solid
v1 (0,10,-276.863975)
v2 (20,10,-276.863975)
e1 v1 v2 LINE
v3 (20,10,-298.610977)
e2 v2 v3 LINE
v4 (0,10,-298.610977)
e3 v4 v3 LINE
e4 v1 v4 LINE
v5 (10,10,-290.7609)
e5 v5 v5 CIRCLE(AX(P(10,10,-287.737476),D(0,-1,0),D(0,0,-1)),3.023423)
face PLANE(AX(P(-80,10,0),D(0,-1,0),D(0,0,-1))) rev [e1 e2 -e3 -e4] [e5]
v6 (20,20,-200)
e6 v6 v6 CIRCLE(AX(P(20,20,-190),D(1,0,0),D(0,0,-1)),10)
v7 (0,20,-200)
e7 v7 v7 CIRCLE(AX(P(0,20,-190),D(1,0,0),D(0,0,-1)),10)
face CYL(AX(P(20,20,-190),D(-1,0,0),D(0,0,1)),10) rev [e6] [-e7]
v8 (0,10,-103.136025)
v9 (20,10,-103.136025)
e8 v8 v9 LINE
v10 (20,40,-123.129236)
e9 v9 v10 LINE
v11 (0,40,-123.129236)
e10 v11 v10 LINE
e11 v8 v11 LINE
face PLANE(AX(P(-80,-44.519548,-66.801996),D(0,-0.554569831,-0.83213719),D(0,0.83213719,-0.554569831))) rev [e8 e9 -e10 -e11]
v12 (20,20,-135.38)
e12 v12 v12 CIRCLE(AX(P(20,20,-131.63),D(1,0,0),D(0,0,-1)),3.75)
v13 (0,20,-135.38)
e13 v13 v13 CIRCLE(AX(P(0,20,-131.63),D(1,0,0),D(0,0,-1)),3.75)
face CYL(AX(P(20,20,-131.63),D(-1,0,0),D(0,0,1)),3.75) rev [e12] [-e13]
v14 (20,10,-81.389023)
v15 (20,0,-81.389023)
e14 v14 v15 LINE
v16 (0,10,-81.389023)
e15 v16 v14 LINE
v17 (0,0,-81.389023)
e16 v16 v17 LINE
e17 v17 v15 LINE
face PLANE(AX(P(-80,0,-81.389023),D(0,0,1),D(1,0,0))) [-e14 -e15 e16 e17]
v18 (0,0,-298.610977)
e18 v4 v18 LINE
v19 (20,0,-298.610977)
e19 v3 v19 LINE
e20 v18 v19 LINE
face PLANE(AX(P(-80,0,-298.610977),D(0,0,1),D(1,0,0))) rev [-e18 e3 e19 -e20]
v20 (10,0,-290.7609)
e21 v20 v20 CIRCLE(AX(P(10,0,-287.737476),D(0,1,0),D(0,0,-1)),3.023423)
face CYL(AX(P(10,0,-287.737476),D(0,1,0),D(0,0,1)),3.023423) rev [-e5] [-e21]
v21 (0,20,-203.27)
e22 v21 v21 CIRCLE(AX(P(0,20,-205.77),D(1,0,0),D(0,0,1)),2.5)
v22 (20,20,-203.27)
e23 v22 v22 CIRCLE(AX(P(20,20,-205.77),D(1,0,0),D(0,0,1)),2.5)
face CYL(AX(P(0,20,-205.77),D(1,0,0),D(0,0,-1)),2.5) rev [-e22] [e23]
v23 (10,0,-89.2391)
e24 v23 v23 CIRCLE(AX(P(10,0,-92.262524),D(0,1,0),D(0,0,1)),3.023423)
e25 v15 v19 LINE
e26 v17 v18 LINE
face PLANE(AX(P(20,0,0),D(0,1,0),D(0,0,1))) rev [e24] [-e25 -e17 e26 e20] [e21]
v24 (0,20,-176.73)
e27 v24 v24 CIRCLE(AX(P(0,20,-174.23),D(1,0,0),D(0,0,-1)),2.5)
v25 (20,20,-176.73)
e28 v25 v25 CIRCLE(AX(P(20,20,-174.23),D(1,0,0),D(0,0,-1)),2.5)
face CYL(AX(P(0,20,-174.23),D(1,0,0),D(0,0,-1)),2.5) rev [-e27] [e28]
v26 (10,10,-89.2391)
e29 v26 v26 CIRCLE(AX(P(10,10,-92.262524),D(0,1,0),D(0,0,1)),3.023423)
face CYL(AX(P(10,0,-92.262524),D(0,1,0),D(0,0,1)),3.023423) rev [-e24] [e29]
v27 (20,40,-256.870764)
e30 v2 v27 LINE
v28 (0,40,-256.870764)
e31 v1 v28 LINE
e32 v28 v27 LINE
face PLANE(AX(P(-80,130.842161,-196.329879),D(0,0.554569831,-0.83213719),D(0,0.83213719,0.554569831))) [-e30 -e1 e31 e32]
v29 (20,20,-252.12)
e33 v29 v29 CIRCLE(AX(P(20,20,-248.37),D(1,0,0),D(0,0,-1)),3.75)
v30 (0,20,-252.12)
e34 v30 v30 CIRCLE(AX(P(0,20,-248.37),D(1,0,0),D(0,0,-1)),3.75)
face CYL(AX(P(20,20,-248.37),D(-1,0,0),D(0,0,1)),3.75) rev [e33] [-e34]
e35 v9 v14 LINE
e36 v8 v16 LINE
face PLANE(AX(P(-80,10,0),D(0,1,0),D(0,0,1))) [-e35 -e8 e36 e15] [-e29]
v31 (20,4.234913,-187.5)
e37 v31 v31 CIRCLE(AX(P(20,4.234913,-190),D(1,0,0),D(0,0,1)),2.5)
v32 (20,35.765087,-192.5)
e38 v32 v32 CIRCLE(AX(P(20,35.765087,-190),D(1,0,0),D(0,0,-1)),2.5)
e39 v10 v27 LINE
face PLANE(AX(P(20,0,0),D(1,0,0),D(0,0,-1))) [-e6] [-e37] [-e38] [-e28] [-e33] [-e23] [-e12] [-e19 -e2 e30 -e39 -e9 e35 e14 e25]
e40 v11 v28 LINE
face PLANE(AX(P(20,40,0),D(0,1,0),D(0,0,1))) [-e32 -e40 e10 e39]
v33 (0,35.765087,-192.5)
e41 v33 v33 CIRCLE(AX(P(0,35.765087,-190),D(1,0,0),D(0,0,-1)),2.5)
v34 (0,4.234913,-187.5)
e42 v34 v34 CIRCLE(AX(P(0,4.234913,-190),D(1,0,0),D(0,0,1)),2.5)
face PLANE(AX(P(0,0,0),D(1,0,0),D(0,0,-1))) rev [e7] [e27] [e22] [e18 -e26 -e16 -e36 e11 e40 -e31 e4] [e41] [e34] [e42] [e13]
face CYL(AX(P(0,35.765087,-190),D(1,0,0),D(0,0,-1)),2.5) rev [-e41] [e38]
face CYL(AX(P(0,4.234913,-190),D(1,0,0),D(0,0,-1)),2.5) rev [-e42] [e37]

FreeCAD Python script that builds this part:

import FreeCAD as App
import Part
import Sketcher
from FreeCAD import Vector


def add_polygon(sketch, points):
    """Adds a closed chain of lines whose ends are joined by coincident constraints."""
    first, n = sketch.GeometryCount, len(points)
    for a, b in zip(points, points[1:] + points[:1]):
        sketch.addGeometry(Part.LineSegment(App.Vector(*a, 0), App.Vector(*b, 0)), False)
    for i in range(n):
        sketch.addConstraint(Sketcher.Constraint("Coincident", first + i, 2, first + (i + 1) % n, 1))

doc = App.newDocument("Part")
body = doc.addObject("PartDesign::Body", "Body")

# Sketch on YZ plane
sketch1 = body.newObject("Sketcher::SketchObject", "Sketch")
sketch1.AttachmentSupport = (doc.getObject("YZ_Plane"), [""])
sketch1.MapMode = "FlatFace"
add_polygon(sketch1, [(40, 0), (0, 0), (0, -380), (40, -380)])  # lines 0-3
sketch1.addGeometry(Part.Circle(Vector(20, -131.6, 0), Vector(0, 0, 1), 3.8), False)  # 4
sketch1.addGeometry(Part.Circle(Vector(20, -190, 0), Vector(0, 0, 1), 10), False)  # 5
sketch1.addGeometry(Part.Circle(Vector(20, -248.4, 0), Vector(0, 0, 1), 3.8), False)  # 6
sketch1.addConstraint(Sketcher.Constraint("Horizontal", 0))
sketch1.addConstraint(Sketcher.Constraint("Vertical", 1))
sketch1.addConstraint(Sketcher.Constraint("Horizontal", 2))
sketch1.addConstraint(Sketcher.Constraint("Vertical", 3))
sketch1.addConstraint(Sketcher.Constraint("Coincident", 0, 2, -1, 1))
sketch1.addConstraint(Sketcher.Constraint("Equal", 4, 6))
sketch1.addConstraint(Sketcher.Constraint("Vertical", 4, 3, 5, 3))
sketch1.addConstraint(Sketcher.Constraint("Vertical", 5, 3, 6, 3))
sketch1.addConstraint(Sketcher.Constraint("Diameter", 5, 20.0))
sketch1.addConstraint(Sketcher.Constraint("Diameter", 4, 7.5))
sketch1.addConstraint(Sketcher.Constraint("DistanceX", 0, 2, 0, 1, 40.0))
sketch1.addConstraint(Sketcher.Constraint("DistanceY", 1, 2, 1, 1, 380.0))
sketch1.addConstraint(Sketcher.Constraint("DistanceX", -1, 1, 4, 3, 20.0))
sketch1.addConstraint(Sketcher.Constraint("DistanceY", 5, 3, -1, 1, 190.0))
sketch1.addConstraint(Sketcher.Constraint("DistanceY", 4, 3, -1, 1, 131.63))
sketch1.addConstraint(Sketcher.Constraint("DistanceY", 6, 3, -1, 1, 248.37))
pad1 = body.newObject("PartDesign::Pad", "Pad")
pad1.Profile = sketch1
pad1.Length = 20

# Sketch on YZ plane
sketch2 = body.newObject("Sketcher::SketchObject", "Sketch001")
sketch2.AttachmentSupport = (doc.getObject("YZ_Plane"), [""])
sketch2.MapMode = "FlatFace"
sketch2.AttachmentOffset = App.Placement(Vector(0, 0, 20), App.Rotation())
add_polygon(sketch2, [(40, -123), (40, 0), (0, 0), (0, -81), (10, -81), (10, -103)])  # lines 0-5
add_polygon(sketch2, [(10, -299), (0, -299), (0, -380), (40, -380), (40, -257), (10, -277)])  # lines 6-11
sketch2.addConstraint(Sketcher.Constraint("Vertical", 0))
sketch2.addConstraint(Sketcher.Constraint("Horizontal", 1))
sketch2.addConstraint(Sketcher.Constraint("Vertical", 2))
sketch2.addConstraint(Sketcher.Constraint("Horizontal", 3))
sketch2.addConstraint(Sketcher.Constraint("Vertical", 4))
sketch2.addConstraint(Sketcher.Constraint("Horizontal", 6))
sketch2.addConstraint(Sketcher.Constraint("Vertical", 7))
sketch2.addConstraint(Sketcher.Constraint("Horizontal", 8))
sketch2.addConstraint(Sketcher.Constraint("Vertical", 9))
sketch2.addConstraint(Sketcher.Constraint("Vertical", 11))
sketch2.addConstraint(Sketcher.Constraint("Coincident", 1, 2, -1, 1))
sketch2.addConstraint(Sketcher.Constraint("PointOnObject", 6, 2, -2))
sketch2.addConstraint(Sketcher.Constraint("Vertical", 5, 2, 8, 2))
sketch2.addConstraint(Sketcher.Constraint("Vertical", 4, 2, 10, 2))
sketch2.addConstraint(Sketcher.Constraint("Equal", 2, 7))
sketch2.addConstraint(Sketcher.Constraint("Equal", 0, 9))
sketch2.addConstraint(Sketcher.Constraint("Equal", 4, 11))
sketch2.addConstraint(Sketcher.Constraint("DistanceX", 1, 2, 1, 1, 40.0))
sketch2.addConstraint(Sketcher.Constraint("DistanceX", 3, 1, 3, 2, 10.0))
sketch2.addConstraint(Sketcher.Constraint("DistanceY", 7, 2, -1, 1, 380.0))
sketch2.addConstraint(Sketcher.Constraint("DistanceY", 0, 1, 0, 2, 123.129236))
sketch2.addConstraint(Sketcher.Constraint("DistanceY", 2, 2, 2, 1, 81.389023))
sketch2.addConstraint(Sketcher.Constraint("DistanceY", 4, 2, 4, 1, 21.747002))
pocket1 = body.newObject("PartDesign::Pocket", "Pocket")
pocket1.Profile = sketch2
pocket1.Length = 100

# Sketch on XZ plane
sketch3 = body.newObject("Sketcher::SketchObject", "Sketch002")
sketch3.AttachmentSupport = (doc.getObject("XZ_Plane"), [""])
sketch3.MapMode = "FlatFace"
sketch3.AttachmentOffset = App.Placement(Vector(0, 0, -10), App.Rotation())
sketch3.addGeometry(Part.Circle(Vector(10, -92.3, 0), Vector(0, 0, 1), 3), False)
sketch3.addGeometry(Part.Circle(Vector(10, -287.7, 0), Vector(0, 0, 1), 3), False)
sketch3.addConstraint(Sketcher.Constraint("Equal", 0, 1))
sketch3.addConstraint(Sketcher.Constraint("Vertical", 0, 3, 1, 3))
sketch3.addConstraint(Sketcher.Constraint("DistanceX", -1, 1, 0, 3, 10.0))
sketch3.addConstraint(Sketcher.Constraint("Diameter", 0, 6.046847))
sketch3.addConstraint(Sketcher.Constraint("DistanceY", 0, 3, -1, 1, 92.262524))
sketch3.addConstraint(Sketcher.Constraint("DistanceY", 1, 3, -1, 1, 287.737476))
pocket2 = body.newObject("PartDesign::Pocket", "Pocket001")
pocket2.Profile = sketch3
pocket2.Type = "ThroughAll"
pocket2.Midplane = True

# Sketch on YZ plane
sketch4 = body.newObject("Sketcher::SketchObject", "Sketch003")
sketch4.AttachmentSupport = (doc.getObject("YZ_Plane"), [""])
sketch4.MapMode = "FlatFace"
sketch4.AttachmentOffset = App.Placement(Vector(0, 0, 20), App.Rotation())
sketch4.addGeometry(Part.Circle(Vector(35.8, -190, 0), Vector(0, 0, 1), 2.5), False)
sketch4.addGeometry(Part.Circle(Vector(4.2, -190, 0), Vector(0, 0, 1), 2.5), False)
sketch4.addGeometry(Part.Circle(Vector(20, -174.2, 0), Vector(0, 0, 1), 2.5), False)
sketch4.addGeometry(Part.Circle(Vector(20, -205.8, 0), Vector(0, 0, 1), 2.5), False)
sketch4.addConstraint(Sketcher.Constraint("Equal", 0, 1))
sketch4.addConstraint(Sketcher.Constraint("Equal", 1, 2))
sketch4.addConstraint(Sketcher.Constraint("Equal", 2, 3))
sketch4.addConstraint(Sketcher.Constraint("Horizontal", 0, 3, 1, 3))
sketch4.addConstraint(Sketcher.Constraint("Vertical", 2, 3, 3, 3))
sketch4.addConstraint(Sketcher.Constraint("Diameter", 0, 5.0))
sketch4.addConstraint(Sketcher.Constraint("DistanceY", 0, 3, -1, 1, 190.0))
sketch4.addConstraint(Sketcher.Constraint("DistanceX", -1, 1, 2, 3, 20.0))
sketch4.addConstraint(Sketcher.Constraint("DistanceY", 2, 3, -1, 1, 174.23))
sketch4.addConstraint(Sketcher.Constraint("DistanceY", 3, 3, -1, 1, 205.77))
sketch4.addConstraint(Sketcher.Constraint("DistanceX", -1, 1, 0, 3, 35.765087))
sketch4.addConstraint(Sketcher.Constraint("DistanceX", -1, 1, 1, 3, 4.234913))
pocket3 = body.newObject("PartDesign::Pocket", "Pocket002")
pocket3.Profile = sketch4
pocket3.Type = "ThroughAll"

doc.recompute()
